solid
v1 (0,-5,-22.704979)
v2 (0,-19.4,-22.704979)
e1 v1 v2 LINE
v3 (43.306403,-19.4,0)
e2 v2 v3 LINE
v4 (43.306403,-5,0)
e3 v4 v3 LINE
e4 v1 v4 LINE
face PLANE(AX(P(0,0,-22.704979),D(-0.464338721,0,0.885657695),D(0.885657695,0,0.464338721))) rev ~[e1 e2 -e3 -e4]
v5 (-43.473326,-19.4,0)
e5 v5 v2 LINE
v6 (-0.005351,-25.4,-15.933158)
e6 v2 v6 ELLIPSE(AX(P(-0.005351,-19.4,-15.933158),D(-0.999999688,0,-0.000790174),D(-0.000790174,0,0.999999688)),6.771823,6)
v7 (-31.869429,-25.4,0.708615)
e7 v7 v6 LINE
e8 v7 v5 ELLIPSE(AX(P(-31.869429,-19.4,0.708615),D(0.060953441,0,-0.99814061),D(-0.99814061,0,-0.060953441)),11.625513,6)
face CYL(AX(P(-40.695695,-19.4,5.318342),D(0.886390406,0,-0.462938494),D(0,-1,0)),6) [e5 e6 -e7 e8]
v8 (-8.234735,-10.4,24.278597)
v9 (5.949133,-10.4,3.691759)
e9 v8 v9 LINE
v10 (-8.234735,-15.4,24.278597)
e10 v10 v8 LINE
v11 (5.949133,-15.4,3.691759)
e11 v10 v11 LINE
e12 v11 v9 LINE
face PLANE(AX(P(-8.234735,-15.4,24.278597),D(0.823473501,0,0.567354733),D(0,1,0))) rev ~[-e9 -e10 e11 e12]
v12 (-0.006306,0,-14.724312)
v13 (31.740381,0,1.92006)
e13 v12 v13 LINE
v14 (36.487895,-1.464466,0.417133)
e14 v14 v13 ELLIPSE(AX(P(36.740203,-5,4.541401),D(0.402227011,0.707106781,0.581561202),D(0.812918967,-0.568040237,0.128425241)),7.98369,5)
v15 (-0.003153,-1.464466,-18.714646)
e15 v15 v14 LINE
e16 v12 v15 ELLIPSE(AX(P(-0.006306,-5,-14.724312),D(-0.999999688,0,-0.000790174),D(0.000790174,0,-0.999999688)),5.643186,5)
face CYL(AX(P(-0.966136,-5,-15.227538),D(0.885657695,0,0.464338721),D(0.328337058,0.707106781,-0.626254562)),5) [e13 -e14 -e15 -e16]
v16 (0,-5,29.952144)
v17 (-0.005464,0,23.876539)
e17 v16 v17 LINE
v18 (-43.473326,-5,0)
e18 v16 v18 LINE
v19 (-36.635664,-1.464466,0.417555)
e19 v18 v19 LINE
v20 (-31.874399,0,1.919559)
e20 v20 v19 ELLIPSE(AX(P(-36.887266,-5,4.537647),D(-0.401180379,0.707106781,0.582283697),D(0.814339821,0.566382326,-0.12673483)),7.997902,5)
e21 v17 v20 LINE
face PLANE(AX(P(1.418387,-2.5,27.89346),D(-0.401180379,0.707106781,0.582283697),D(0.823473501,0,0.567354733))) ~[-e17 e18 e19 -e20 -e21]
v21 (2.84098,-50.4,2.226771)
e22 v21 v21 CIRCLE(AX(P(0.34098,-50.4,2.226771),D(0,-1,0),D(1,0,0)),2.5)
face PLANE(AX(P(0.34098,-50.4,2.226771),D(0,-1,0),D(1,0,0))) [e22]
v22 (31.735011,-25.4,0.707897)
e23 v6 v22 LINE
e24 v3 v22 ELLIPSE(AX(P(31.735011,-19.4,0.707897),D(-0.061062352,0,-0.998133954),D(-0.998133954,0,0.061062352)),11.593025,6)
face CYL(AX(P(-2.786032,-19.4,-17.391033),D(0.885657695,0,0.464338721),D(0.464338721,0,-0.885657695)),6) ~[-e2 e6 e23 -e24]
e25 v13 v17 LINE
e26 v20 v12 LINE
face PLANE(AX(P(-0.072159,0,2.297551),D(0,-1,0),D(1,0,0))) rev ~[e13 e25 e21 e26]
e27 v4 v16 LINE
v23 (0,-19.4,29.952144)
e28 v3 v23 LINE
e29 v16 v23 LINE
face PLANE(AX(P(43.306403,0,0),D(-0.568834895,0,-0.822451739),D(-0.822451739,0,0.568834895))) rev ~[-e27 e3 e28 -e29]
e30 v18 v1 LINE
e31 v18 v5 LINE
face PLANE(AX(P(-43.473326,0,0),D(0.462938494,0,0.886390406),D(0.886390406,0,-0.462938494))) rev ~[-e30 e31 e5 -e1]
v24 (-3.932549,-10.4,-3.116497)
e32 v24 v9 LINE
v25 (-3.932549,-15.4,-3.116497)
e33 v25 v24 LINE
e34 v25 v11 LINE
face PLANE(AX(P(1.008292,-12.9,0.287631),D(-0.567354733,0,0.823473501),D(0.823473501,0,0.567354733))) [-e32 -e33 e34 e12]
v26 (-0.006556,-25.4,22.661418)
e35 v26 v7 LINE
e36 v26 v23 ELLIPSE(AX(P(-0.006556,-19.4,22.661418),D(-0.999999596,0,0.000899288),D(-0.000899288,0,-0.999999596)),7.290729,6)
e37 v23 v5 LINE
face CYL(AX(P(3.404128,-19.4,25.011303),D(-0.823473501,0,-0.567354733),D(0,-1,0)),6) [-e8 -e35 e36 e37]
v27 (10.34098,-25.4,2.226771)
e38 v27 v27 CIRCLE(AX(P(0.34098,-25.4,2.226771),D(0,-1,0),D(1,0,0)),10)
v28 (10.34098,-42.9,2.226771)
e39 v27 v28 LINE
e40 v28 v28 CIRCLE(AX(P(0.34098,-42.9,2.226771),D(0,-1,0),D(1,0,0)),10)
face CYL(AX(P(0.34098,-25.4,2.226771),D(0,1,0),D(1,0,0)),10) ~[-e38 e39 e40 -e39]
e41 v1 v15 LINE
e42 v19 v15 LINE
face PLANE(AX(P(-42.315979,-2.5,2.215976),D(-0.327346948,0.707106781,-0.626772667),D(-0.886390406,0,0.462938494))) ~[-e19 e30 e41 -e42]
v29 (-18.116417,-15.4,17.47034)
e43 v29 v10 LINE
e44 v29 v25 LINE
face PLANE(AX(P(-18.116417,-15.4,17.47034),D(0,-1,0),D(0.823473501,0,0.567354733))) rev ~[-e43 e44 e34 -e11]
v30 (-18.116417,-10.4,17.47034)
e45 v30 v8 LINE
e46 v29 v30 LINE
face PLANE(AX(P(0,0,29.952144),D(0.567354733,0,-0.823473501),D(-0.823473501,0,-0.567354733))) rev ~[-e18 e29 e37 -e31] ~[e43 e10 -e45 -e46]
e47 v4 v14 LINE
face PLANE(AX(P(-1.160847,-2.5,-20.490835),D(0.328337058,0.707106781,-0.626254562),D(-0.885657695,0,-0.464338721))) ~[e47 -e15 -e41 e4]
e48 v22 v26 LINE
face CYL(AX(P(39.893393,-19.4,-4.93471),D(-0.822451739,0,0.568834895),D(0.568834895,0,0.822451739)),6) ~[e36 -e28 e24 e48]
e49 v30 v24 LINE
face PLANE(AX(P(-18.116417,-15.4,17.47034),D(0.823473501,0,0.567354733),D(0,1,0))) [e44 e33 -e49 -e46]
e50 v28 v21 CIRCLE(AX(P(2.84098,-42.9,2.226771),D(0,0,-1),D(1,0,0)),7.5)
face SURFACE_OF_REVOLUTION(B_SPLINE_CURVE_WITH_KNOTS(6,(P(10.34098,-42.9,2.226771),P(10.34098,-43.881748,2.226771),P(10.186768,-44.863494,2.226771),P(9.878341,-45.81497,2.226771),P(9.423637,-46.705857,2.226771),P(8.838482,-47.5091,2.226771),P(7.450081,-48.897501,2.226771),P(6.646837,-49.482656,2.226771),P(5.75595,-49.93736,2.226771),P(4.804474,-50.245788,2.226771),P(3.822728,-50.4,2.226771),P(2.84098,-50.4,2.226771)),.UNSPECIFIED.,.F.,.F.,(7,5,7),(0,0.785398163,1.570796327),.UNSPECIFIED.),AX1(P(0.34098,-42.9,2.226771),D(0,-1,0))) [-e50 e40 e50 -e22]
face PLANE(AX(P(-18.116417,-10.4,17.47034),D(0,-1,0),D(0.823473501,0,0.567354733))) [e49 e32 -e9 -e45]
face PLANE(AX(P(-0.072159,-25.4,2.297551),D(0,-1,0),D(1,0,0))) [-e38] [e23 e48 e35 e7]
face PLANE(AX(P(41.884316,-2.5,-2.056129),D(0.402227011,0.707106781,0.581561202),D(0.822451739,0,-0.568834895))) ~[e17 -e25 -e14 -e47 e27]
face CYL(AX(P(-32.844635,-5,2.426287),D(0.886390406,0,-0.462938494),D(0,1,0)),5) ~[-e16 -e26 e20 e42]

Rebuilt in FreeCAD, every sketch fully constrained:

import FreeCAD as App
import Part
import Sketcher
Q = App.Units.Quantity


def edges_at(feature, points):
    """Names of the edges that pass closest to the given points."""
    edges = feature.Shape.Edges
    near = lambda p: min(range(len(edges)), key=lambda i: edges[i].distToShape(Part.Vertex(*p))[0])
    return sorted({f"Edge{near(p) + 1}" for p in points})

doc = App.newDocument("Part")
params = doc.addObject("Spreadsheet::Sheet", "Params")
for row, (alias, value) in enumerate([
    ("pad1_length", "25.4 mm"),
    ("chamfer_size", "5 mm"),
    ("fillet_radius", "6 mm"),
    ("sketch2_width", "12 mm"),
    ("sketch2_height", "5 mm"),
    ("pocket1_length", "25 mm"),
    ("fillet2_radius", "5 mm"),
    ("sketch3_diameter", "20 mm"),
    ("pad2_length", "25 mm"),
    ("fillet3_radius", "7.5 mm"),
], start=1):
    params.set(f"A{row}", alias)
    params.set(f"B{row}", "=" + value)
    params.setAlias(f"B{row}", alias)

body = doc.addObject("PartDesign::Body", "Body")

# Sketch on XZ plane
sketch1 = body.newObject("Sketcher::SketchObject", "Sketch")
sketch1.AttachmentSupport = (doc.getObject("XZ_Plane"), [""])
sketch1.MapMode = "FlatFace"
sketch1.addGeometry(Part.LineSegment(App.Vector(43.306403, 0, 0), App.Vector(0, 29.952144, 0)), False)
sketch1.addGeometry(Part.LineSegment(App.Vector(0, 29.952144, 0), App.Vector(-43.473326, 0, 0)), False)
sketch1.addGeometry(Part.LineSegment(App.Vector(-43.473326, 0, 0), App.Vector(0, -22.704979, 0)), False)
sketch1.addGeometry(Part.LineSegment(App.Vector(0, -22.704979, 0), App.Vector(43.306403, 0, 0)), False)
sketch1.addConstraint(Sketcher.Constraint("Coincident", 0, 2, 1, 1))
sketch1.addConstraint(Sketcher.Constraint("Coincident", 1, 2, 2, 1))
sketch1.addConstraint(Sketcher.Constraint("Coincident", 2, 2, 3, 1))
sketch1.addConstraint(Sketcher.Constraint("Coincident", 3, 2, 0, 1))
sketch1.addConstraint(Sketcher.Constraint("PointOnObject", 0, 2, -2))
sketch1.addConstraint(Sketcher.Constraint("PointOnObject", 1, 2, -1))
sketch1.addConstraint(Sketcher.Constraint("PointOnObject", 2, 2, -2))
sketch1.addConstraint(Sketcher.Constraint("PointOnObject", 3, 2, -1))
sketch1.addConstraint(Sketcher.Constraint("Distance", 0, Q("52.655251 mm")))
sketch1.addConstraint(Sketcher.Constraint("Distance", 3, Q("48.89745 mm")))
sketch1.addConstraint(Sketcher.Constraint("DistanceY", 2, 2, -1, 1, Q("22.704979 mm")))
sketch1.addConstraint(Sketcher.Constraint("DistanceX", 1, 2, 3, 2, Q("86.779729 mm")))
pad1 = body.newObject("PartDesign::Pad", "Pad")
pad1.Profile = sketch1
pad1.setExpression("Length", "Params.pad1_length")
doc.recompute()

chamfer = body.newObject("PartDesign::Chamfer", "Chamfer")
chamfer.Base = (pad1, edges_at(pad1, [
    (-21.737, 0, 14.976),
    (-21.737, 0, -11.352),
    (21.653, 0, -11.352),
    (21.653, 0, 14.976),
]))
chamfer.setExpression("Size", "Params.chamfer_size")
doc.recompute()

fillet = body.newObject("PartDesign::Fillet", "Fillet")
fillet.Base = (chamfer, edges_at(chamfer, [
    (-21.737, -25.4, 14.976),
    (21.653, -25.4, 14.976),
    (21.653, -25.4, -11.352),
    (-21.737, -25.4, -11.352),
]))
fillet.setExpression("Radius", "Params.fillet_radius")

# Sketch on an angled plane
sketch2 = body.newObject("Sketcher::SketchObject", "Sketch001")
sketch2.Placement = App.Placement(App.Vector(-13.993689, 0, 20.310807), App.Rotation(App.Vector(0.823473501, 0, 0.567354733), App.Vector(0, 1, 0), App.Vector(-0.567354733, 0, 0.823473501), "ZXY"))
sketch2.addGeometry(Part.LineSegment(App.Vector(-5.006509, -10.4, 0), App.Vector(-5.006509, -15.4, 0)), False)
sketch2.addGeometry(Part.LineSegment(App.Vector(-5.006509, -15.4, 0), App.Vector(6.993491, -15.4, 0)), False)
sketch2.addGeometry(Part.LineSegment(App.Vector(6.993491, -15.4, 0), App.Vector(6.993491, -10.4, 0)), False)
sketch2.addGeometry(Part.LineSegment(App.Vector(6.993491, -10.4, 0), App.Vector(-5.006509, -10.4, 0)), False)
sketch2.addConstraint(Sketcher.Constraint("Coincident", 0, 2, 1, 1))
sketch2.addConstraint(Sketcher.Constraint("Coincident", 1, 2, 2, 1))
sketch2.addConstraint(Sketcher.Constraint("Coincident", 2, 2, 3, 1))
sketch2.addConstraint(Sketcher.Constraint("Coincident", 3, 2, 0, 1))
sketch2.addConstraint(Sketcher.Constraint("Vertical", 0))
sketch2.addConstraint(Sketcher.Constraint("Horizontal", 1))
sketch2.addConstraint(Sketcher.Constraint("Vertical", 2))
sketch2.addConstraint(Sketcher.Constraint("Horizontal", 3))
sketch2.addConstraint(Sketcher.Constraint("DistanceX", 1, 1, 1, 2, Q("12 mm")))
sketch2.addConstraint(Sketcher.Constraint("DistanceY", 0, 2, 0, 1, Q("5 mm")))
sketch2.addConstraint(Sketcher.Constraint("DistanceY", 0, 2, -1, 1, Q("15.4 mm")))
sketch2.addConstraint(Sketcher.Constraint("DistanceX", 0, 2, -1, 1, Q("5.006509 mm")))
sketch2.setExpression("Constraints[8]", "Params.sketch2_width")
sketch2.setExpression("Constraints[9]", "Params.sketch2_height")
pocket1 = body.newObject("PartDesign::Pocket", "Pocket")
pocket1.Profile = sketch2
pocket1.setExpression("Length", "Params.pocket1_length")
doc.recompute()

fillet2 = body.newObject("PartDesign::Fillet", "Fillet001")
fillet2.Base = (pocket1, edges_at(pocket1, [(-16.904, 0, -8.236), (16.83, 0, -8.236)]))
fillet2.setExpression("Radius", "Params.fillet2_radius")

# Sketch on XZ plane
sketch3 = body.newObject("Sketcher::SketchObject", "Sketch002")
sketch3.AttachmentSupport = (doc.getObject("XZ_Plane"), [""])
sketch3.MapMode = "FlatFace"
sketch3.AttachmentOffset = App.Placement(App.Vector(0, 0, 25.4), App.Rotation())
sketch3.addGeometry(Part.Circle(App.Vector(0.34098, 2.226771, 0), App.Vector(0, 0, 1), 10), False)
sketch3.addConstraint(Sketcher.Constraint("Diameter", 0, Q("20 mm")))
sketch3.addConstraint(Sketcher.Constraint("DistanceX", -1, 1, 0, 3, Q("0.34098 mm")))
sketch3.addConstraint(Sketcher.Constraint("DistanceY", -1, 1, 0, 3, Q("2.226771 mm")))
sketch3.setExpression("Constraints[0]", "Params.sketch3_diameter")
pad2 = body.newObject("PartDesign::Pad", "Pad001")
pad2.Profile = sketch3
pad2.setExpression("Length", "Params.pad2_length")
doc.recompute()

fillet3 = body.newObject("PartDesign::Fillet", "Fillet002")
fillet3.Base = (pad2, edges_at(pad2, [(-9.659, -50.4, 2.227)]))
fillet3.setExpression("Radius", "Params.fillet3_radius")

doc.recompute()
